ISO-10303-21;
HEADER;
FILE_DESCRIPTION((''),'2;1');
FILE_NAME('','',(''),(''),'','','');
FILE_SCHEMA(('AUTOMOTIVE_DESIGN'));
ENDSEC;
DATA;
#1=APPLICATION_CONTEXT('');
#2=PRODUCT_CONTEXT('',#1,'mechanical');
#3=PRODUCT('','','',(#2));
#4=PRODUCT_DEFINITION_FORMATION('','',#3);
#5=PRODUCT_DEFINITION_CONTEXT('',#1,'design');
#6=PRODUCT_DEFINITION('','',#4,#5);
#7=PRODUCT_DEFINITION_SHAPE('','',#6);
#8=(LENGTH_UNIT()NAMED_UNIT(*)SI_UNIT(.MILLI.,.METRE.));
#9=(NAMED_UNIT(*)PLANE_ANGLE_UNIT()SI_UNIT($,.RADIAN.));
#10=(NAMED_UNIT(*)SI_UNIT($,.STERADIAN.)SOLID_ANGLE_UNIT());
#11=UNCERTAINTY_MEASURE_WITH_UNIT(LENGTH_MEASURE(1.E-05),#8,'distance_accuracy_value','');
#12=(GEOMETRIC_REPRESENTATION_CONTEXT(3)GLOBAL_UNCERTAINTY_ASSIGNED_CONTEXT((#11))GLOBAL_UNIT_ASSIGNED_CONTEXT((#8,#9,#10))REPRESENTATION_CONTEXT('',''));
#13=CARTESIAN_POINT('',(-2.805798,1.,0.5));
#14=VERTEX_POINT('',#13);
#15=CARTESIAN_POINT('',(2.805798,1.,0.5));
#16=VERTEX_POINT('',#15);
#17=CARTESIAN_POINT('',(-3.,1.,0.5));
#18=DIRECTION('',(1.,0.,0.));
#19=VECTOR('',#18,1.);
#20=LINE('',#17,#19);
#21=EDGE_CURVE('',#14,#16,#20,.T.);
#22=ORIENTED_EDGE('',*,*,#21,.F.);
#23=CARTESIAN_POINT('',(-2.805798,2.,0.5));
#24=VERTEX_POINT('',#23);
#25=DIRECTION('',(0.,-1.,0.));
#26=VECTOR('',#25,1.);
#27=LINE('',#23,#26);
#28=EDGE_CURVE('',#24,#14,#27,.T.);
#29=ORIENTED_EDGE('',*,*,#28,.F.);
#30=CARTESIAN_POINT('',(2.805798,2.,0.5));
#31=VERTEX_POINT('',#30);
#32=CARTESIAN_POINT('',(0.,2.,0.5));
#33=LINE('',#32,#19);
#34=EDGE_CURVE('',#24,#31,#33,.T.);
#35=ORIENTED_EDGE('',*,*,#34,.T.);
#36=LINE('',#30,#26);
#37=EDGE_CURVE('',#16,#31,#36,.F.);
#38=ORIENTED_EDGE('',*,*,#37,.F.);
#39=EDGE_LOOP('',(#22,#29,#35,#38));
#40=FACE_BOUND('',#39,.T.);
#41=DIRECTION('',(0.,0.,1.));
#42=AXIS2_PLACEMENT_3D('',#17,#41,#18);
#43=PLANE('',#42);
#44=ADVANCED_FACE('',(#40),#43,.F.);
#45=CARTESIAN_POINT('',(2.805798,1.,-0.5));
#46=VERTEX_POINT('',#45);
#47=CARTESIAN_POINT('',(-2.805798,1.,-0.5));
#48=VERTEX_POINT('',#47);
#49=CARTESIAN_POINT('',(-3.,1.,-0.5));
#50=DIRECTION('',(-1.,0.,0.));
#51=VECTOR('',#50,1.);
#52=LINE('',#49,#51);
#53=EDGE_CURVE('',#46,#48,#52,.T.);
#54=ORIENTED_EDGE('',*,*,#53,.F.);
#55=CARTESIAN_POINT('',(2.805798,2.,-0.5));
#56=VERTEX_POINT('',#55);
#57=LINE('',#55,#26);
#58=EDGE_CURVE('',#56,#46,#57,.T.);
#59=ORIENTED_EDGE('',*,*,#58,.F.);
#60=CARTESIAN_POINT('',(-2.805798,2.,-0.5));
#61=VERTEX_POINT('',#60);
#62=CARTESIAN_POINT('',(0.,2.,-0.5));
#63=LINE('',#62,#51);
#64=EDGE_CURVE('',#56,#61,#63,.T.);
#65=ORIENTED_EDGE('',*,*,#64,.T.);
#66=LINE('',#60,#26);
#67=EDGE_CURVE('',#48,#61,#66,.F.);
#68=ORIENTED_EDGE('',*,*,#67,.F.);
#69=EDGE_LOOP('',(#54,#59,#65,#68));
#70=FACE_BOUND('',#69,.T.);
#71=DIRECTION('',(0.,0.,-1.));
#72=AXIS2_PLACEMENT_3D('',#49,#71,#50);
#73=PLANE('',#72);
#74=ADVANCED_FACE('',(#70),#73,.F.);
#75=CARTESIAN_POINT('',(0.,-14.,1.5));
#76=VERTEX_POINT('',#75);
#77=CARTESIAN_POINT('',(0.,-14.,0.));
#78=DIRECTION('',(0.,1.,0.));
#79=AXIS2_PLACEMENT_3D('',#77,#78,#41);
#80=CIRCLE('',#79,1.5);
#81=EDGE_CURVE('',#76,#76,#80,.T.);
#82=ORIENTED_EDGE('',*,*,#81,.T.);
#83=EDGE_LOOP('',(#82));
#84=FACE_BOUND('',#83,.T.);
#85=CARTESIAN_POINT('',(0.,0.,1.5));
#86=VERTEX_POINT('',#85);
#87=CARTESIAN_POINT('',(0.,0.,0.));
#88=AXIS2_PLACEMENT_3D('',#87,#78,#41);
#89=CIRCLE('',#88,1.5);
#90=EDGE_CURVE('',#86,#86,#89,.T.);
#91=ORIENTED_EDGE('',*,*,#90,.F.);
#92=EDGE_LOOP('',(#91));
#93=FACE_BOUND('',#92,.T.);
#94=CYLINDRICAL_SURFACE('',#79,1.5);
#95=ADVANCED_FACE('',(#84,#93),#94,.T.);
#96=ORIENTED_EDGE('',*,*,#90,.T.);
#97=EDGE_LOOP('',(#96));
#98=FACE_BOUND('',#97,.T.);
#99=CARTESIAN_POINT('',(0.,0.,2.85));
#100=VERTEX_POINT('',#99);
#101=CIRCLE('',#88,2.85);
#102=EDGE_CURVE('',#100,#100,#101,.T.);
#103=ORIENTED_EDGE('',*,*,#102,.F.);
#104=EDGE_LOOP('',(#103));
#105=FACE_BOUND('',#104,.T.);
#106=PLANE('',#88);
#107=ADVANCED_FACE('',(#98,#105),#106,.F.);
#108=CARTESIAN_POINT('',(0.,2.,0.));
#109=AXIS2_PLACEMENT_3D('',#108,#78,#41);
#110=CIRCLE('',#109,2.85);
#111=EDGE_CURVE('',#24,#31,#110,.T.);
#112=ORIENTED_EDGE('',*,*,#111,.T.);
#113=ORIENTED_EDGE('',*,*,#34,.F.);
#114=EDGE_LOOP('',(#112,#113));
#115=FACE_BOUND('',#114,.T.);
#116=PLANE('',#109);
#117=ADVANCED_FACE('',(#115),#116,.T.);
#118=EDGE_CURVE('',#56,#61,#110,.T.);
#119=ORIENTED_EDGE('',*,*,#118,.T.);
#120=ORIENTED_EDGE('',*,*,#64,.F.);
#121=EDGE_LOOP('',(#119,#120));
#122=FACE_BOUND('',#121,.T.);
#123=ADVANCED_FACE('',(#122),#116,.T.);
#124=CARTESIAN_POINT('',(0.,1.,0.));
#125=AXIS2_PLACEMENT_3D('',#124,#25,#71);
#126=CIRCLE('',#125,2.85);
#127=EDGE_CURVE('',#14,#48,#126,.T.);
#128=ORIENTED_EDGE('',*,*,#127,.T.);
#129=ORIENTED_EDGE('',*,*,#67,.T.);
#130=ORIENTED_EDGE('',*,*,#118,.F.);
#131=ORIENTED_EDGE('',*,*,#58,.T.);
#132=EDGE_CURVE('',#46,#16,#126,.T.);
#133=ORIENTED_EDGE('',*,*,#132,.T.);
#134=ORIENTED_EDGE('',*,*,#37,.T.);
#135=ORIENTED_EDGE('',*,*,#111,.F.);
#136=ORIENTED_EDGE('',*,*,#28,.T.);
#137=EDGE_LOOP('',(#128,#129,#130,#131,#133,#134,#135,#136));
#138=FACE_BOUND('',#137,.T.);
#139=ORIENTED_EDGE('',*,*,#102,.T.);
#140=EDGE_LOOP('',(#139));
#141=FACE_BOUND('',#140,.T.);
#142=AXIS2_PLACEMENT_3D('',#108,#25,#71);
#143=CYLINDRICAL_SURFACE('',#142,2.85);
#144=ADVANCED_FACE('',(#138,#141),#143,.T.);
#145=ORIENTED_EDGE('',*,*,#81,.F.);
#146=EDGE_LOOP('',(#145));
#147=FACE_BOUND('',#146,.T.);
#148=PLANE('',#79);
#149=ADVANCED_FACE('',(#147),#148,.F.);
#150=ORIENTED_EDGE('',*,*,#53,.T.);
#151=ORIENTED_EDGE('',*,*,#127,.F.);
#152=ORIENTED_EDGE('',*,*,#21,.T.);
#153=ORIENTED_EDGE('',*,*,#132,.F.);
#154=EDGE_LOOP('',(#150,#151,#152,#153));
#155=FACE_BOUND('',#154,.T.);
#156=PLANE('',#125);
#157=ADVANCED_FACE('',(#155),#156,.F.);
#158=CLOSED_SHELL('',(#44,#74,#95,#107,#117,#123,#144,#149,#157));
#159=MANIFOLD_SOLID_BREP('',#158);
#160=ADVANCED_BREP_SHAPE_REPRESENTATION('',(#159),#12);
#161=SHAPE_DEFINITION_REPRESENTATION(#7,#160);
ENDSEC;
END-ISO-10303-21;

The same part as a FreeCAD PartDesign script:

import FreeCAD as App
import Part
import Sketcher

doc = App.newDocument("Part")
body = doc.addObject("PartDesign::Body", "Body")

sketch1 = doc.addObject("Sketcher::SketchObject", "Sketch")
body.addObject(sketch1)
sketch1.AttachmentSupport = (doc.XZ_Plane, [""])
sketch1.MapMode = "FlatFace"
sketch1.addGeometry(Part.Circle(App.Vector(0, 0, 0), App.Vector(0, 0, 1), 2.9), False)
sketch1.addConstraint(Sketcher.Constraint("Coincident", 0, 3, -1, 1))
sketch1.addConstraint(Sketcher.Constraint("Diameter", 0, 5.7))
pad1 = doc.addObject("PartDesign::Pad", "Pad")
body.addObject(pad1)
pad1.Profile = sketch1
pad1.Length = 2
pad1.Reversed = True

sketch2 = doc.addObject("Sketcher::SketchObject", "Sketch001")
body.addObject(sketch2)
sketch2.AttachmentSupport = (doc.XZ_Plane, [""])
sketch2.MapMode = "FlatFace"
sketch2.addGeometry(Part.Circle(App.Vector(0, 0, 0), App.Vector(0, 0, 1), 1.5), False)
sketch2.addConstraint(Sketcher.Constraint("Coincident", 0, 3, -1, 1))
sketch2.addConstraint(Sketcher.Constraint("Diameter", 0, 3.0))
pad2 = doc.addObject("PartDesign::Pad", "Pad001")
body.addObject(pad2)
pad2.Profile = sketch2
pad2.Length = 14

sketch3 = doc.addObject("Sketcher::SketchObject", "Sketch002")
body.addObject(sketch3)
sketch3.AttachmentSupport = (doc.XZ_Plane, [""])
sketch3.MapMode = "FlatFace"
sketch3.AttachmentOffset = App.Placement(App.Vector(0, 0, -2), App.Rotation())
sketch3.addGeometry(Part.LineSegment(App.Vector(-3, -0.5, 0), App.Vector(-3, 0.5, 0)), False)
sketch3.addGeometry(Part.LineSegment(App.Vector(-3, 0.5, 0), App.Vector(3, 0.5, 0)), False)
sketch3.addGeometry(Part.LineSegment(App.Vector(3, 0.5, 0), App.Vector(3, -0.5, 0)), False)
sketch3.addGeometry(Part.LineSegment(App.Vector(3, -0.5, 0), App.Vector(-3, -0.5, 0)), False)
sketch3.addConstraint(Sketcher.Constraint("Coincident", 0, 2, 1, 1))
sketch3.addConstraint(Sketcher.Constraint("Coincident", 1, 2, 2, 1))
sketch3.addConstraint(Sketcher.Constraint("Coincident", 2, 2, 3, 1))
sketch3.addConstraint(Sketcher.Constraint("Coincident", 3, 2, 0, 1))
sketch3.addConstraint(Sketcher.Constraint("Vertical", 0))
sketch3.addConstraint(Sketcher.Constraint("Horizontal", 1))
sketch3.addConstraint(Sketcher.Constraint("Vertical", 2))
sketch3.addConstraint(Sketcher.Constraint("Horizontal", 3))
sketch3.addConstraint(Sketcher.Constraint("Symmetric", 0, 2, 2, 2, -1, 1))
sketch3.addConstraint(Sketcher.Constraint("DistanceX", 1, 1, 1, 2, 6.0))
sketch3.addConstraint(Sketcher.Constraint("DistanceY", 0, 1, 0, 2, 1.0))
pocket1 = doc.addObject("PartDesign::Pocket", "Pocket")
body.addObject(pocket1)
pocket1.Profile = sketch3
pocket1.Length = 1
pocket1.Reversed = True

doc.recompute()
